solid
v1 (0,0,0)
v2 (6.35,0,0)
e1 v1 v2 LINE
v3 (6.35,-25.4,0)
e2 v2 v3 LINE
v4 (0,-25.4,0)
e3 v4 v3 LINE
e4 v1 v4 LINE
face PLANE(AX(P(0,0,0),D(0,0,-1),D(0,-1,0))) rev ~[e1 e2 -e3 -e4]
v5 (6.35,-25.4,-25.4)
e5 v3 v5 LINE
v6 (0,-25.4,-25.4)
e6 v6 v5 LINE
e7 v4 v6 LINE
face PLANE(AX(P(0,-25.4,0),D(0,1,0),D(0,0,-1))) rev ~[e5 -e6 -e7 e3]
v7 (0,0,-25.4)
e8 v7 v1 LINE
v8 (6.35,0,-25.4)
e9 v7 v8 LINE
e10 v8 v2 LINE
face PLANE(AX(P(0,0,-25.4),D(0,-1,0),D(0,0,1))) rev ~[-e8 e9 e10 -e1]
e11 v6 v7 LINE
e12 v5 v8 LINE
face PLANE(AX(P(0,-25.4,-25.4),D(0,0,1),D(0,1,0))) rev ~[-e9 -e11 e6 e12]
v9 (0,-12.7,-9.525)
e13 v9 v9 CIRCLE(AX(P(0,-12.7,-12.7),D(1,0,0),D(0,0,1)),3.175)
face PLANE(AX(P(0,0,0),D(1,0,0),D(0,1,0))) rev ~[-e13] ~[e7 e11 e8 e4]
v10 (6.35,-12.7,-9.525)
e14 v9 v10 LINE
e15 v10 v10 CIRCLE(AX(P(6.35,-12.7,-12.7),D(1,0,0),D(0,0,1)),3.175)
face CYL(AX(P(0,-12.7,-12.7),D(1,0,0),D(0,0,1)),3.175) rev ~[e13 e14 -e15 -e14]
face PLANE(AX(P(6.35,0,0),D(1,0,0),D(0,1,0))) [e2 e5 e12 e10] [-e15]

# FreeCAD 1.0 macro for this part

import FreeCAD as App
import Part
import Sketcher
Q = App.Units.Quantity


def add_polygon(sketch, points):
    """Adds a closed chain of lines whose ends are joined by coincident constraints."""
    first, n = sketch.GeometryCount, len(points)
    for a, b in zip(points, points[1:] + points[:1]):
        sketch.addGeometry(Part.LineSegment(App.Vector(*a, 0), App.Vector(*b, 0)), False)
    for i in range(n):
        sketch.addConstraint(Sketcher.Constraint("Coincident", first + i, 2, first + (i + 1) % n, 1))

doc = App.newDocument("Part")
body = doc.addObject("PartDesign::Body", "Body")

sketch1 = body.newObject("Sketcher::SketchObject", "Sketch")
sketch1.AttachmentSupport = (doc.getObject("YZ_Plane"), [""])
sketch1.MapMode = "FlatFace"
add_polygon(sketch1, [(0, -25), (0, 0), (-25, 0), (-25, -25)])
sketch1.addConstraint(Sketcher.Constraint("Vertical", 0))
sketch1.addConstraint(Sketcher.Constraint("Horizontal", 1))
sketch1.addConstraint(Sketcher.Constraint("Vertical", 2))
sketch1.addConstraint(Sketcher.Constraint("Horizontal", 3))
sketch1.addConstraint(Sketcher.Constraint("Coincident", 0, 2, -1, 1))
sketch1.addConstraint(Sketcher.Constraint("Equal", 3, 0))
sketch1.addConstraint(Sketcher.Constraint("DistanceX", 1, 2, 1, 1, Q("1 in")))
pad1 = body.newObject("PartDesign::Pad", "Pad")
pad1.Profile = sketch1
pad1.Length = Q("0.25 in")

sketch2 = body.newObject("Sketcher::SketchObject", "Sketch001")
sketch2.AttachmentSupport = (doc.getObject("YZ_Plane"), [""])
sketch2.MapMode = "FlatFace"
sketch2.addGeometry(Part.Circle(App.Vector(-12.7, -12.7, 0), App.Vector(0, 0, 1), 3.2), False)
sketch2.addConstraint(Sketcher.Constraint("Diameter", 0, Q("0.25 in")))
sketch2.addConstraint(Sketcher.Constraint("DistanceX", 0, 3, -1, 1, Q("0.5 in")))
sketch2.addConstraint(Sketcher.Constraint("DistanceY", 0, 3, -1, 1, Q("0.5 in")))
doc.recompute()
hole = body.newObject("PartDesign::Hole", "Hole")
hole.Profile = sketch2
hole.ThreadType = "None"
hole.Diameter = Q("0.25 in")
hole.DepthType = "ThroughAll"
hole.Reversed = True

doc.recompute()
